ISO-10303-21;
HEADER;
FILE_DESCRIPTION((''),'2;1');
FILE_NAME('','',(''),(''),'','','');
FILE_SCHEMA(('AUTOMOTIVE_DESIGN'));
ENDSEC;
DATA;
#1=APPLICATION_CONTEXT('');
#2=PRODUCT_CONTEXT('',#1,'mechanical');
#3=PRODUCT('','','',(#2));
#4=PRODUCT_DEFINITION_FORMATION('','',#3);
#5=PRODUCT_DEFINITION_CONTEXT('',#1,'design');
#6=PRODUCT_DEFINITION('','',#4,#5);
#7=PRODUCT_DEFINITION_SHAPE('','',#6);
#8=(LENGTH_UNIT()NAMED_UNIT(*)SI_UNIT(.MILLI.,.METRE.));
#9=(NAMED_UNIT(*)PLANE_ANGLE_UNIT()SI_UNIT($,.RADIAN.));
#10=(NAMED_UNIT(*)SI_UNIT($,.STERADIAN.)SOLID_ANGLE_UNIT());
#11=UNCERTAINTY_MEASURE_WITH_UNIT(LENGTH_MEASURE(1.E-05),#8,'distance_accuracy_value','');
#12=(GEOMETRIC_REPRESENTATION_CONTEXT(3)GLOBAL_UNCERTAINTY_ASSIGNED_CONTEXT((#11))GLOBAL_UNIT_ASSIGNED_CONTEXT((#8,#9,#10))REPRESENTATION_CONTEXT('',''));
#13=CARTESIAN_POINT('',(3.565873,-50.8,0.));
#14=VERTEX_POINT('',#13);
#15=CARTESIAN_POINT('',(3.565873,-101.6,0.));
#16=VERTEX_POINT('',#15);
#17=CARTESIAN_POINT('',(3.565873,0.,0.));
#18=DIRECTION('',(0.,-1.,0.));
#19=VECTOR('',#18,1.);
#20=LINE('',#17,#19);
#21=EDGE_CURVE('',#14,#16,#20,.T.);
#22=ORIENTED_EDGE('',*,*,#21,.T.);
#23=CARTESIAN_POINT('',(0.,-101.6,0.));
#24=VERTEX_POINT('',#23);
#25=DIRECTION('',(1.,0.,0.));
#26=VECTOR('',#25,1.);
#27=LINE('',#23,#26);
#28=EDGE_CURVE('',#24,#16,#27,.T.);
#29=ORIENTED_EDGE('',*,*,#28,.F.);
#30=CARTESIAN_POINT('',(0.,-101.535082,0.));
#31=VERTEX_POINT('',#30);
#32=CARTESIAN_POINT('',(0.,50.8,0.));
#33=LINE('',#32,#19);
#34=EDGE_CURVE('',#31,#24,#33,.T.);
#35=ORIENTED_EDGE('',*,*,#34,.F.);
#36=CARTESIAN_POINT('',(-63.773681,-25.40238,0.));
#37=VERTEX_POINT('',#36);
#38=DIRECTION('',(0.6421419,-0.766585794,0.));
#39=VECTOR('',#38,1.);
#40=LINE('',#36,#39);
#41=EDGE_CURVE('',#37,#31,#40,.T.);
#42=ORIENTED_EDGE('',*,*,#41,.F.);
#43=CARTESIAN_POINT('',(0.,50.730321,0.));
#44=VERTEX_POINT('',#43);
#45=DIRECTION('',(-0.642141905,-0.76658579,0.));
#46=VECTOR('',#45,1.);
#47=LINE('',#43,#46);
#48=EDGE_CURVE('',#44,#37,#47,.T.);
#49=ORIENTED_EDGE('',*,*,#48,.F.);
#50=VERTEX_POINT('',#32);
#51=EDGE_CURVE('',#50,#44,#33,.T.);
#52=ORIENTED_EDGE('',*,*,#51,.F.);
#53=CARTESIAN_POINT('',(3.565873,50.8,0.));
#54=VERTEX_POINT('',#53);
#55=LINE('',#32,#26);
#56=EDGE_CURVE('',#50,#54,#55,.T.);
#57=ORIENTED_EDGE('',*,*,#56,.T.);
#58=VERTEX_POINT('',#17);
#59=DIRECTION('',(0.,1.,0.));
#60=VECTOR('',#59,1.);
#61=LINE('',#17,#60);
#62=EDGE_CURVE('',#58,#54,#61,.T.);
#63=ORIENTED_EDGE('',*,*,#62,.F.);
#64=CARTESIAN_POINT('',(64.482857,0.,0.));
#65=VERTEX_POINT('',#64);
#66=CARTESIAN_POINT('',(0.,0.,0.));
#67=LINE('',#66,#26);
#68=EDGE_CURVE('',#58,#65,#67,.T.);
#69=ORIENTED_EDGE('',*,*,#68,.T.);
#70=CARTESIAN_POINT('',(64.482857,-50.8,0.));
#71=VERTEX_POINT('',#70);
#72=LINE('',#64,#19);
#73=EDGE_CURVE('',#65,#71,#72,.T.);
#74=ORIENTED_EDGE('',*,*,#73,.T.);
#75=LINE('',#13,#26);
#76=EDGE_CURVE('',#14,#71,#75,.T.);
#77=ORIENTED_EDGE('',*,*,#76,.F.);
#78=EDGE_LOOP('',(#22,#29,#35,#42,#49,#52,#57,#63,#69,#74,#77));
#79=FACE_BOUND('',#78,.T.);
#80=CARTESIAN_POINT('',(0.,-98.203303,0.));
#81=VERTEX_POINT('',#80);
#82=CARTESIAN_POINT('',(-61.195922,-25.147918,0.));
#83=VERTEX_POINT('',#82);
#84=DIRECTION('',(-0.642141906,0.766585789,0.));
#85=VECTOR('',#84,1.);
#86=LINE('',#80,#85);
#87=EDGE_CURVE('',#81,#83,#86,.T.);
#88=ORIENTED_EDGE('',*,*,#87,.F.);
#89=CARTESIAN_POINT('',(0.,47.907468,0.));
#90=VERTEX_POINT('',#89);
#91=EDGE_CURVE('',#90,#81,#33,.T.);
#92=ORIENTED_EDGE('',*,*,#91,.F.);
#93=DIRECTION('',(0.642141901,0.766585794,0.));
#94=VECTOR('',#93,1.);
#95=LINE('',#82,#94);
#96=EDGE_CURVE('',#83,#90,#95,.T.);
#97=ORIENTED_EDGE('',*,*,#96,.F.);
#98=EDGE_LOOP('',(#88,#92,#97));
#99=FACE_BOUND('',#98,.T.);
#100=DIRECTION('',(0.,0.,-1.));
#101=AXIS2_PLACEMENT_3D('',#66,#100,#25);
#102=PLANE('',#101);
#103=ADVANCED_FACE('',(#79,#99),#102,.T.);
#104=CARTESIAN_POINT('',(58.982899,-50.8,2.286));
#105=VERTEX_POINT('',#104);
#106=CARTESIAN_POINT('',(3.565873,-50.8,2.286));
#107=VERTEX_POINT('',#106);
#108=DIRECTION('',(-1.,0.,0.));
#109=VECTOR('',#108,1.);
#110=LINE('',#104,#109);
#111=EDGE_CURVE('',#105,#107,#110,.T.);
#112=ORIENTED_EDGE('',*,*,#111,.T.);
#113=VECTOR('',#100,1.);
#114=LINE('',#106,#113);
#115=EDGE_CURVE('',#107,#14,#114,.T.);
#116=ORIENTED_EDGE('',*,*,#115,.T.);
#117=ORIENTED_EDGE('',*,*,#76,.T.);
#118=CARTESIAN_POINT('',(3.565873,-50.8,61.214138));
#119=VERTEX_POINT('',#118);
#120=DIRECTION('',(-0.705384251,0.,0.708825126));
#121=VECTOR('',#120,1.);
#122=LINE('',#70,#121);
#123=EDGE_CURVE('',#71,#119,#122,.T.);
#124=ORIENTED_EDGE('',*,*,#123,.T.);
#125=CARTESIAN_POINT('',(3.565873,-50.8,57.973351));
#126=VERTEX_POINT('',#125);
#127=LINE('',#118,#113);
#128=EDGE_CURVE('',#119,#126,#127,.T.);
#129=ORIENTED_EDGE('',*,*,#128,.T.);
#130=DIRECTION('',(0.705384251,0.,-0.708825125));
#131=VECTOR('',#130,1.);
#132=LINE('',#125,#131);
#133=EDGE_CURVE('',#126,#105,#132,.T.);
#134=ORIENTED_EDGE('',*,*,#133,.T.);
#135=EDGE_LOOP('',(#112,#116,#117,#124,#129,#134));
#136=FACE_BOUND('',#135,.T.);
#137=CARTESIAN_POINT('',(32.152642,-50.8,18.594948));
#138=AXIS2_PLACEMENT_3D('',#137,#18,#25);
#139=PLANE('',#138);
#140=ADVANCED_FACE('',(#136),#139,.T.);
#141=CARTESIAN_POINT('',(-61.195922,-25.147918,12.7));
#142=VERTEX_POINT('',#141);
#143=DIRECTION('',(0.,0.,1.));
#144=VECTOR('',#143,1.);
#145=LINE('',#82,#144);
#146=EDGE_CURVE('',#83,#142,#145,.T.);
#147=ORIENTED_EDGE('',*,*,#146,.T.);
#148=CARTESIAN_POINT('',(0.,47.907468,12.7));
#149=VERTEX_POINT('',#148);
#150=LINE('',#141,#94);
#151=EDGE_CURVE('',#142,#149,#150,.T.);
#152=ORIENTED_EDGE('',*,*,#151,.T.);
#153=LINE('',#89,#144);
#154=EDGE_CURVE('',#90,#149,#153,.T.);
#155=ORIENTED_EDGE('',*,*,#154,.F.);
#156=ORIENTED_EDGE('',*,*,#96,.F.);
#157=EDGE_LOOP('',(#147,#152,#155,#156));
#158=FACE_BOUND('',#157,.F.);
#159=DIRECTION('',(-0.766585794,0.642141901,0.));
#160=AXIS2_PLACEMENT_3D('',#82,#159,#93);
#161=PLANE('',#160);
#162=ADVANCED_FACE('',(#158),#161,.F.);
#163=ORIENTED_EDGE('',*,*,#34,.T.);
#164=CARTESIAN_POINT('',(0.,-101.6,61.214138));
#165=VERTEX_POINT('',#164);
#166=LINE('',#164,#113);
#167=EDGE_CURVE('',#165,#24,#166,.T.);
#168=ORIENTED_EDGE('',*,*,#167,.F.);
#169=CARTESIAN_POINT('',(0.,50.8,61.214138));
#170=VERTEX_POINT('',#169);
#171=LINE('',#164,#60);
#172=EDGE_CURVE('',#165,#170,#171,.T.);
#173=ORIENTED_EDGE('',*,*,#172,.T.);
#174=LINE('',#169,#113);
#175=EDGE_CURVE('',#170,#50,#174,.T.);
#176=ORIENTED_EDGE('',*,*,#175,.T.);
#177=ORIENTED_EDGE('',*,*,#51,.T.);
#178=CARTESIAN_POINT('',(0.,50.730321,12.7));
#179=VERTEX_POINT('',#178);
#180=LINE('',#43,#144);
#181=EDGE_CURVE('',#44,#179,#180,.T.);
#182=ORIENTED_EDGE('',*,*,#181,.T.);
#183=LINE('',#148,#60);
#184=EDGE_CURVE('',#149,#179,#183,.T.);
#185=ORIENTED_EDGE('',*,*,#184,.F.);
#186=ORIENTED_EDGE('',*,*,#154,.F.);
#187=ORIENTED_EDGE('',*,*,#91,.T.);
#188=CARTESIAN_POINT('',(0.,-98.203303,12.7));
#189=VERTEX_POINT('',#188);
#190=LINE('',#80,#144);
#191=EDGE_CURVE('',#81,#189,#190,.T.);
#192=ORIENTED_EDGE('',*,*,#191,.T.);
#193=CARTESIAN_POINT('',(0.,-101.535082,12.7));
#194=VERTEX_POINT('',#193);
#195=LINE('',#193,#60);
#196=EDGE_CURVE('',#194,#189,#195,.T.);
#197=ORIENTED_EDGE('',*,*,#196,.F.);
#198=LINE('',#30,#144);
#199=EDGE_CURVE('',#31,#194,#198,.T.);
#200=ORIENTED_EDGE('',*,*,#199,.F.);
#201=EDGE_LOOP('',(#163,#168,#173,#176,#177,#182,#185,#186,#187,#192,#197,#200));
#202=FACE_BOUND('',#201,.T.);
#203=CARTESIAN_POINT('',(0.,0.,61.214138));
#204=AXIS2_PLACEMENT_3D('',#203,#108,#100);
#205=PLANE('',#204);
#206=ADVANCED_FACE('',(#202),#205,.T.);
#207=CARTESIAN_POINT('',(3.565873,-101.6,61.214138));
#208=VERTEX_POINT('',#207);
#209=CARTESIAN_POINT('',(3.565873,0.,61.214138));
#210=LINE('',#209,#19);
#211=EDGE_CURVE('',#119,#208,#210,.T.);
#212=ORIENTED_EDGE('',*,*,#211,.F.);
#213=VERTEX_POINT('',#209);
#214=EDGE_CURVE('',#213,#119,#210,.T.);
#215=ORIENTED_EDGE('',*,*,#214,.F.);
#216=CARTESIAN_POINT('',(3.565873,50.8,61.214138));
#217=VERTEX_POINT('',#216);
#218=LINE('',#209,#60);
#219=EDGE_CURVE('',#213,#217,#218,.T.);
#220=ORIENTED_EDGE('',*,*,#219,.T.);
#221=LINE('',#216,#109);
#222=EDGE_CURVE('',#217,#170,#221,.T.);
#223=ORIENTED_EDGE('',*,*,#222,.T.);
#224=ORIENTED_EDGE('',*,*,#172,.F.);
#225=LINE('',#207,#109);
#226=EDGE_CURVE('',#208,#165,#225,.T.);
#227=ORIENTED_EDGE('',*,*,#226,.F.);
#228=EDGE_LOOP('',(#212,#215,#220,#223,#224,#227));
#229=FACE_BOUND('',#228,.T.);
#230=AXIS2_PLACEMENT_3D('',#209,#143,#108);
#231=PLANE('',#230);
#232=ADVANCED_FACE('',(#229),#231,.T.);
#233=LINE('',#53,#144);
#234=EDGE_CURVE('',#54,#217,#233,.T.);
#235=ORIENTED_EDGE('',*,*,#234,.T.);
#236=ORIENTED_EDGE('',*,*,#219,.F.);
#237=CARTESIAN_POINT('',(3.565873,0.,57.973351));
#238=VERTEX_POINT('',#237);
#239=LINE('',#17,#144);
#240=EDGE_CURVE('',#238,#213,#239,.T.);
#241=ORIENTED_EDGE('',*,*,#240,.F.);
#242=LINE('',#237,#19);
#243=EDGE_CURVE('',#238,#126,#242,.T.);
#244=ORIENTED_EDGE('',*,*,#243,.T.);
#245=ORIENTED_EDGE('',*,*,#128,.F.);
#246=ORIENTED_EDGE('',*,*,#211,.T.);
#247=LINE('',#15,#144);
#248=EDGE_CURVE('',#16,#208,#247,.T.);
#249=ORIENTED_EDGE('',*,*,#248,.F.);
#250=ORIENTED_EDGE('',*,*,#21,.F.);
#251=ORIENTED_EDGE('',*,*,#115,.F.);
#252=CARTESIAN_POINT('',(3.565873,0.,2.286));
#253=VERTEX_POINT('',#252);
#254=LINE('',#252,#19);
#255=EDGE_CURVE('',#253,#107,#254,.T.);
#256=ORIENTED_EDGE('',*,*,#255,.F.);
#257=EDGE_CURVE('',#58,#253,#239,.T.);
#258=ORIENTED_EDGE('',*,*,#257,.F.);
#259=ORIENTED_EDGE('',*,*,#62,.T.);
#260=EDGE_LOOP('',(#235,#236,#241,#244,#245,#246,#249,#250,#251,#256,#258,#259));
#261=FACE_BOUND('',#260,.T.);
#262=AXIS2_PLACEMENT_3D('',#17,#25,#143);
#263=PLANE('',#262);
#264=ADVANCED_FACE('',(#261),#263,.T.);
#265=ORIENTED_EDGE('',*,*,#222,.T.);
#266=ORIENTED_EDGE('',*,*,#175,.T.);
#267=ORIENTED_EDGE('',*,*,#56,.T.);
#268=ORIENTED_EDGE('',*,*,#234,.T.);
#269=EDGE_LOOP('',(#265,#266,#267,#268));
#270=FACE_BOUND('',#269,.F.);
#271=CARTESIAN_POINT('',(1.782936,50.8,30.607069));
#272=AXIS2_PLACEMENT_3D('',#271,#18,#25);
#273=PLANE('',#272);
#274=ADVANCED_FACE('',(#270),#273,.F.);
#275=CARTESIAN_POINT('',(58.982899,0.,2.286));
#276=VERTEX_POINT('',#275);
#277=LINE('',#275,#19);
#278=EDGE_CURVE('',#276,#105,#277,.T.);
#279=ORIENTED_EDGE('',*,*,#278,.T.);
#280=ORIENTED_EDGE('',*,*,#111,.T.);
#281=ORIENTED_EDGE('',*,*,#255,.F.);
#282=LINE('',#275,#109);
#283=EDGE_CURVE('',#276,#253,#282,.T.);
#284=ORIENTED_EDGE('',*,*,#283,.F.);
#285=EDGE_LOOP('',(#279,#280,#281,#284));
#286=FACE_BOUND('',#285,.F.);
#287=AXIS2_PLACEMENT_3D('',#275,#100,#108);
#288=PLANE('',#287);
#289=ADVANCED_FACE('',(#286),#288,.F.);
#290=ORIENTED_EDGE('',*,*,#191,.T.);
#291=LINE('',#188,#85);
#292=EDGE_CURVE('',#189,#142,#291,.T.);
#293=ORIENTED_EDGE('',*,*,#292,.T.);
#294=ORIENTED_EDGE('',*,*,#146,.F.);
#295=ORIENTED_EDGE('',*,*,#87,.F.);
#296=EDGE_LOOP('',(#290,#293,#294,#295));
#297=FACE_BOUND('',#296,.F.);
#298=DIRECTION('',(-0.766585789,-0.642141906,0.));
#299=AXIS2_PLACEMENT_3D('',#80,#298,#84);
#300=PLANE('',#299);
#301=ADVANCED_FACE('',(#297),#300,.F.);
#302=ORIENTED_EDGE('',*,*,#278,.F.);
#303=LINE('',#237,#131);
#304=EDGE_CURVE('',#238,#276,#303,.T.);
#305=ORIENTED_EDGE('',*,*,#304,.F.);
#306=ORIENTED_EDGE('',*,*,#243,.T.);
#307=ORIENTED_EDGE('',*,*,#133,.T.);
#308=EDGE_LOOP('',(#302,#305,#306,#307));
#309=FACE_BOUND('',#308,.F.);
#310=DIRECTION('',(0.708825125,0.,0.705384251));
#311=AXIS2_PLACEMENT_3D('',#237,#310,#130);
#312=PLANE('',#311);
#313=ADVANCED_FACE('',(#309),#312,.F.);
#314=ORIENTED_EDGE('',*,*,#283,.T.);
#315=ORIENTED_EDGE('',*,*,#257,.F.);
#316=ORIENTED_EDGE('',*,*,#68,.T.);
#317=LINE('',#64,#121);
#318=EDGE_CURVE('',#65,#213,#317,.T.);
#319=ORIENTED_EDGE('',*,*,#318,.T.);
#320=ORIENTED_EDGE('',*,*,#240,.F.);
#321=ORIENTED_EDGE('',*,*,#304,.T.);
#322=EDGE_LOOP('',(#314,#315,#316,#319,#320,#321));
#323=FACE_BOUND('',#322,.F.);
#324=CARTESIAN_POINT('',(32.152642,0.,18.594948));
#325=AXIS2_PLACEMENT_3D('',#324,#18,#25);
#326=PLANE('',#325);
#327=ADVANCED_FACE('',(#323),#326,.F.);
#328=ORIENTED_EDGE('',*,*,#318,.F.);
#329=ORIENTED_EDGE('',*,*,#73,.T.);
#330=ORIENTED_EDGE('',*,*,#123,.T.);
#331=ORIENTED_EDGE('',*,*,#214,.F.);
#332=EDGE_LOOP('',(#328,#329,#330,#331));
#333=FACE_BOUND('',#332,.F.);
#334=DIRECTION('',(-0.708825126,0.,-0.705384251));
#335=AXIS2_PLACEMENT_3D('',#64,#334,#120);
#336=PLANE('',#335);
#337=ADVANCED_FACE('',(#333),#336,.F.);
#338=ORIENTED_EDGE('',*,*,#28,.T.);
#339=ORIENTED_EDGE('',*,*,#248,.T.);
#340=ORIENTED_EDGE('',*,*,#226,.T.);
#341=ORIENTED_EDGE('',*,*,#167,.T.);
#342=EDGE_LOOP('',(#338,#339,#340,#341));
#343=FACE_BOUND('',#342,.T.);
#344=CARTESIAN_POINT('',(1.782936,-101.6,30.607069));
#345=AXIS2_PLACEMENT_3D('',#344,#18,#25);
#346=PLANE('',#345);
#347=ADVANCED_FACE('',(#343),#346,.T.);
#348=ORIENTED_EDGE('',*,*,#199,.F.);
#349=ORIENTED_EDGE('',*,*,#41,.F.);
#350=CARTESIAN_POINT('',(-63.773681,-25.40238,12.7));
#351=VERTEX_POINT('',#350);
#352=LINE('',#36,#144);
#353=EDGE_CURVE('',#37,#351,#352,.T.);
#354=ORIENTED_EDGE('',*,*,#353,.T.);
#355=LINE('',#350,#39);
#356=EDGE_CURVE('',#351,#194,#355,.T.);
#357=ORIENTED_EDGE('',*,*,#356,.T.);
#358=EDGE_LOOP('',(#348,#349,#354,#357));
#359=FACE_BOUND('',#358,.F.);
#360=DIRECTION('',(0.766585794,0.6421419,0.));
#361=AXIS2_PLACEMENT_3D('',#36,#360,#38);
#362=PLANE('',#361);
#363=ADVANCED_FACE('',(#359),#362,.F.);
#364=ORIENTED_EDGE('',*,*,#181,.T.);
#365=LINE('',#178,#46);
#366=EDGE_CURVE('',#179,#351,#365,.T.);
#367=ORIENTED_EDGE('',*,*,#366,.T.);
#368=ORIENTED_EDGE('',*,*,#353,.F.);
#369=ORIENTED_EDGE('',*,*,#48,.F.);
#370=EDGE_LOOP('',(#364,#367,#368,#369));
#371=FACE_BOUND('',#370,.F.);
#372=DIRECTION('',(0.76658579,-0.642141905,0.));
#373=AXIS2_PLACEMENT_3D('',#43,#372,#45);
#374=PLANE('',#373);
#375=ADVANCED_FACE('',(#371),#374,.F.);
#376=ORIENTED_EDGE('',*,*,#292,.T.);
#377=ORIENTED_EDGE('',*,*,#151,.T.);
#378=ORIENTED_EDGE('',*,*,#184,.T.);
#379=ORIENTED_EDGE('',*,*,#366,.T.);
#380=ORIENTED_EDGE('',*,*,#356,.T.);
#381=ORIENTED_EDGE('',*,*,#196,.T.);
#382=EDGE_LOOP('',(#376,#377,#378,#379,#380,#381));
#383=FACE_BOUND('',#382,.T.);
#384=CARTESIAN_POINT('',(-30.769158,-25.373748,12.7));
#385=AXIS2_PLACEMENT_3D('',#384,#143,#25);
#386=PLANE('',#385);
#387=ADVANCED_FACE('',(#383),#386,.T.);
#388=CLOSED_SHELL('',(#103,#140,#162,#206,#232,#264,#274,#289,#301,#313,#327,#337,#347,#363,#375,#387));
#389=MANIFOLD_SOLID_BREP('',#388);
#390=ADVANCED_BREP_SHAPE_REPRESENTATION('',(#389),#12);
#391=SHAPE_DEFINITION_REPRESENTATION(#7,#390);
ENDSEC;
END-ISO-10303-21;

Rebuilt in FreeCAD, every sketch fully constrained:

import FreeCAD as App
import Part
import Sketcher

V = App.Vector
Q = App.Units.Quantity


def add_polygon(sketch, points):
    """Adds a closed chain of lines whose ends are joined by coincident constraints."""
    first, n = sketch.GeometryCount, len(points)
    for a, b in zip(points, points[1:] + points[:1]):
        sketch.addGeometry(Part.LineSegment(App.Vector(*a, 0), App.Vector(*b, 0)), False)
    for i in range(n):
        sketch.addConstraint(Sketcher.Constraint("Coincident", first + i, 2, first + (i + 1) % n, 1))

doc = App.newDocument("Part")
params = doc.addObject("Spreadsheet::Sheet", "Params")
for row, (alias, value) in enumerate([
    ("pad1_length", "4 in"),
    ("sketch2_length", "3.4 in"),
    ("sketch2_height", "0.09 in"),
    ("pad2_length", "2 in"),
    ("pad3_length", "2 in"),
    ("sketch4_length", "3.91 in"),
    ("pad4_length", "0.5 in"),
], start=1):
    params.set(f"A{row}", alias)
    params.set(f"B{row}", "=" + value)
    params.setAlias(f"B{row}", alias)

body = doc.addObject("PartDesign::Body", "Body")

# Sketch on XZ plane
sketch1 = body.newObject("Sketcher::SketchObject", "Sketch")
sketch1.AttachmentSupport = (doc.getObject("XZ_Plane"), [""])
sketch1.MapMode = "FlatFace"
add_polygon(sketch1, [(0, 61.2), (0, 0), (3.6, 0), (3.6, 61.2)])  # lines 0-3
sketch1.addConstraint([
    Sketcher.Constraint("Vertical", 0),
    Sketcher.Constraint("Horizontal", 1),
    Sketcher.Constraint("Vertical", 2),
    Sketcher.Constraint("Horizontal", 3),
    Sketcher.Constraint("Coincident", 0, 2, -1, 1),
    Sketcher.Constraint("DistanceX", 1, 1, 1, 2, 3.565873),
    Sketcher.Constraint("DistanceY", 0, 2, 0, 1, 61.214138),
])
pad1 = body.newObject("PartDesign::Pad", "Pad")
pad1.Profile = sketch1
pad1.setExpression("Length", "Params.pad1_length")

# Sketch on XZ plane
sketch2 = body.newObject("Sketcher::SketchObject", "Sketch001")
sketch2.AttachmentSupport = (doc.getObject("XZ_Plane"), [""])
sketch2.MapMode = "FlatFace"
add_polygon(sketch2, [(3.6, 2.3), (3.6, 0), (64.5, 0), (3.6, 61.2), (3.6, 58), (59, 2.3)])  # lines 0-5
sketch2.addConstraint([
    Sketcher.Constraint("Vertical", 0),
    Sketcher.Constraint("Horizontal", 1),
    Sketcher.Constraint("Vertical", 3),
    Sketcher.Constraint("Horizontal", 5),
    Sketcher.Constraint("PointOnObject", 0, 2, -1),
    Sketcher.Constraint("Parallel", 2, 4),
    Sketcher.Constraint("Vertical", 0, 2, 2, 2),
    Sketcher.Constraint("Distance", 2, Q("3.4 in")),
    Sketcher.Constraint("DistanceY", 0, 2, 0, 1, Q("0.09 in")),
    Sketcher.Constraint("DistanceX", -1, 1, 4, 2, 58.982899),
    Sketcher.Constraint("Distance", 4, 78.562891),
    Sketcher.Constraint("DistanceX", 1, 1, 1, 2, 60.916984),
])
sketch2.setExpression("Constraints[13]", "Params.sketch2_length")
sketch2.setExpression("Constraints[14]", "Params.sketch2_height")
pad2 = body.newObject("PartDesign::Pad", "Pad001")
pad2.Profile = sketch2
pad2.setExpression("Length", "Params.pad2_length")

# Sketch on XZ plane
sketch3 = body.newObject("Sketcher::SketchObject", "Sketch002")
sketch3.AttachmentSupport = (doc.getObject("XZ_Plane"), [""])
sketch3.MapMode = "FlatFace"
add_polygon(sketch3, [(0, 61.2), (0, 0), (3.6, 0), (3.6, 61.2)])  # lines 0-3
sketch3.addConstraint([
    Sketcher.Constraint("Vertical", 0),
    Sketcher.Constraint("Horizontal", 1),
    Sketcher.Constraint("Vertical", 2),
    Sketcher.Constraint("Horizontal", 3),
    Sketcher.Constraint("Coincident", 0, 2, -1, 1),
    Sketcher.Constraint("DistanceX", 1, 1, 1, 2, 3.565873),
    Sketcher.Constraint("DistanceY", 0, 2, 0, 1, 61.214138),
])
pad3 = body.newObject("PartDesign::Pad", "Pad002")
pad3.Profile = sketch3
pad3.setExpression("Length", "Params.pad3_length")
pad3.Reversed = True

# Sketch on XY plane
sketch4 = body.newObject("Sketcher::SketchObject", "Sketch003")
sketch4.AttachmentSupport = (doc.getObject("XY_Plane"), [""])
sketch4.MapMode = "FlatFace"
add_polygon(sketch4, [(0, 47.9), (0, 50.7), (-63.8, -25.4), (0, -101.5), (0, -98.2), (-61.2, -25.1)])  # lines 0-5
sketch4.addConstraint([
    Sketcher.Constraint("Vertical", 0),
    Sketcher.Constraint("Vertical", 3),
    Sketcher.Constraint("PointOnObject", 0, 2, -2),
    Sketcher.Constraint("PointOnObject", 2, 2, -2),
    Sketcher.Constraint("Parallel", 2, 4),
    Sketcher.Constraint("Parallel", 1, 5),
    Sketcher.Constraint("Equal", 1, 2),
    Sketcher.Constraint("Distance", 1, Q("3.91 in")),
    Sketcher.Constraint("DistanceY", 3, 1, 3, 2, 3.331779),
    Sketcher.Constraint("DistanceY", 1, 2, 0, 2, 76.132701),
    Sketcher.Constraint("DistanceY", 0, 1, 0, 2, 2.822853),
    Sketcher.Constraint("DistanceY", -1, 1, 0, 2, 50.730321),
])
sketch4.setExpression("Constraints[13]", "Params.sketch4_length")
pad4 = body.newObject("PartDesign::Pad", "Pad003")
pad4.Profile = sketch4
pad4.setExpression("Length", "Params.pad4_length")

doc.recompute()
